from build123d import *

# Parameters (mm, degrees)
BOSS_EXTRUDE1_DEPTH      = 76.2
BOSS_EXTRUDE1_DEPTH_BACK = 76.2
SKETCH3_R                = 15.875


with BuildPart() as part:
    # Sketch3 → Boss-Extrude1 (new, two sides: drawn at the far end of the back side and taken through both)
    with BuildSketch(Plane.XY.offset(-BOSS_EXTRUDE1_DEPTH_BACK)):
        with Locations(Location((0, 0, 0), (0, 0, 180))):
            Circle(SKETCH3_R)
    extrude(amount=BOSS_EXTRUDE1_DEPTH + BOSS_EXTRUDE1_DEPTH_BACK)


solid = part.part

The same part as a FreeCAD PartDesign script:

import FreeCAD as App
import Part
import Sketcher
Q = App.Units.Quantity

doc = App.newDocument("Part")
body = doc.addObject("PartDesign::Body", "Body")

sketch1 = body.newObject("Sketcher::SketchObject", "Sketch")
sketch1.AttachmentSupport = (doc.getObject("XY_Plane"), [""])
sketch1.MapMode = "FlatFace"
sketch1.addGeometry(Part.Circle(App.Vector(0, 0, 0), App.Vector(0, 0, 1), 15.875), False)
sketch1.addConstraint([
    Sketcher.Constraint("Coincident", 0, 3, -1, 1),
    Sketcher.Constraint("Diameter", 0, Q("1.25 in")),
])
pad1 = body.newObject("PartDesign::Pad", "Pad")
pad1.Profile = sketch1
pad1.Type = "TwoLengths"
pad1.Length = Q("3 in")
pad1.Length2 = Q("3 in")

doc.recompute()
